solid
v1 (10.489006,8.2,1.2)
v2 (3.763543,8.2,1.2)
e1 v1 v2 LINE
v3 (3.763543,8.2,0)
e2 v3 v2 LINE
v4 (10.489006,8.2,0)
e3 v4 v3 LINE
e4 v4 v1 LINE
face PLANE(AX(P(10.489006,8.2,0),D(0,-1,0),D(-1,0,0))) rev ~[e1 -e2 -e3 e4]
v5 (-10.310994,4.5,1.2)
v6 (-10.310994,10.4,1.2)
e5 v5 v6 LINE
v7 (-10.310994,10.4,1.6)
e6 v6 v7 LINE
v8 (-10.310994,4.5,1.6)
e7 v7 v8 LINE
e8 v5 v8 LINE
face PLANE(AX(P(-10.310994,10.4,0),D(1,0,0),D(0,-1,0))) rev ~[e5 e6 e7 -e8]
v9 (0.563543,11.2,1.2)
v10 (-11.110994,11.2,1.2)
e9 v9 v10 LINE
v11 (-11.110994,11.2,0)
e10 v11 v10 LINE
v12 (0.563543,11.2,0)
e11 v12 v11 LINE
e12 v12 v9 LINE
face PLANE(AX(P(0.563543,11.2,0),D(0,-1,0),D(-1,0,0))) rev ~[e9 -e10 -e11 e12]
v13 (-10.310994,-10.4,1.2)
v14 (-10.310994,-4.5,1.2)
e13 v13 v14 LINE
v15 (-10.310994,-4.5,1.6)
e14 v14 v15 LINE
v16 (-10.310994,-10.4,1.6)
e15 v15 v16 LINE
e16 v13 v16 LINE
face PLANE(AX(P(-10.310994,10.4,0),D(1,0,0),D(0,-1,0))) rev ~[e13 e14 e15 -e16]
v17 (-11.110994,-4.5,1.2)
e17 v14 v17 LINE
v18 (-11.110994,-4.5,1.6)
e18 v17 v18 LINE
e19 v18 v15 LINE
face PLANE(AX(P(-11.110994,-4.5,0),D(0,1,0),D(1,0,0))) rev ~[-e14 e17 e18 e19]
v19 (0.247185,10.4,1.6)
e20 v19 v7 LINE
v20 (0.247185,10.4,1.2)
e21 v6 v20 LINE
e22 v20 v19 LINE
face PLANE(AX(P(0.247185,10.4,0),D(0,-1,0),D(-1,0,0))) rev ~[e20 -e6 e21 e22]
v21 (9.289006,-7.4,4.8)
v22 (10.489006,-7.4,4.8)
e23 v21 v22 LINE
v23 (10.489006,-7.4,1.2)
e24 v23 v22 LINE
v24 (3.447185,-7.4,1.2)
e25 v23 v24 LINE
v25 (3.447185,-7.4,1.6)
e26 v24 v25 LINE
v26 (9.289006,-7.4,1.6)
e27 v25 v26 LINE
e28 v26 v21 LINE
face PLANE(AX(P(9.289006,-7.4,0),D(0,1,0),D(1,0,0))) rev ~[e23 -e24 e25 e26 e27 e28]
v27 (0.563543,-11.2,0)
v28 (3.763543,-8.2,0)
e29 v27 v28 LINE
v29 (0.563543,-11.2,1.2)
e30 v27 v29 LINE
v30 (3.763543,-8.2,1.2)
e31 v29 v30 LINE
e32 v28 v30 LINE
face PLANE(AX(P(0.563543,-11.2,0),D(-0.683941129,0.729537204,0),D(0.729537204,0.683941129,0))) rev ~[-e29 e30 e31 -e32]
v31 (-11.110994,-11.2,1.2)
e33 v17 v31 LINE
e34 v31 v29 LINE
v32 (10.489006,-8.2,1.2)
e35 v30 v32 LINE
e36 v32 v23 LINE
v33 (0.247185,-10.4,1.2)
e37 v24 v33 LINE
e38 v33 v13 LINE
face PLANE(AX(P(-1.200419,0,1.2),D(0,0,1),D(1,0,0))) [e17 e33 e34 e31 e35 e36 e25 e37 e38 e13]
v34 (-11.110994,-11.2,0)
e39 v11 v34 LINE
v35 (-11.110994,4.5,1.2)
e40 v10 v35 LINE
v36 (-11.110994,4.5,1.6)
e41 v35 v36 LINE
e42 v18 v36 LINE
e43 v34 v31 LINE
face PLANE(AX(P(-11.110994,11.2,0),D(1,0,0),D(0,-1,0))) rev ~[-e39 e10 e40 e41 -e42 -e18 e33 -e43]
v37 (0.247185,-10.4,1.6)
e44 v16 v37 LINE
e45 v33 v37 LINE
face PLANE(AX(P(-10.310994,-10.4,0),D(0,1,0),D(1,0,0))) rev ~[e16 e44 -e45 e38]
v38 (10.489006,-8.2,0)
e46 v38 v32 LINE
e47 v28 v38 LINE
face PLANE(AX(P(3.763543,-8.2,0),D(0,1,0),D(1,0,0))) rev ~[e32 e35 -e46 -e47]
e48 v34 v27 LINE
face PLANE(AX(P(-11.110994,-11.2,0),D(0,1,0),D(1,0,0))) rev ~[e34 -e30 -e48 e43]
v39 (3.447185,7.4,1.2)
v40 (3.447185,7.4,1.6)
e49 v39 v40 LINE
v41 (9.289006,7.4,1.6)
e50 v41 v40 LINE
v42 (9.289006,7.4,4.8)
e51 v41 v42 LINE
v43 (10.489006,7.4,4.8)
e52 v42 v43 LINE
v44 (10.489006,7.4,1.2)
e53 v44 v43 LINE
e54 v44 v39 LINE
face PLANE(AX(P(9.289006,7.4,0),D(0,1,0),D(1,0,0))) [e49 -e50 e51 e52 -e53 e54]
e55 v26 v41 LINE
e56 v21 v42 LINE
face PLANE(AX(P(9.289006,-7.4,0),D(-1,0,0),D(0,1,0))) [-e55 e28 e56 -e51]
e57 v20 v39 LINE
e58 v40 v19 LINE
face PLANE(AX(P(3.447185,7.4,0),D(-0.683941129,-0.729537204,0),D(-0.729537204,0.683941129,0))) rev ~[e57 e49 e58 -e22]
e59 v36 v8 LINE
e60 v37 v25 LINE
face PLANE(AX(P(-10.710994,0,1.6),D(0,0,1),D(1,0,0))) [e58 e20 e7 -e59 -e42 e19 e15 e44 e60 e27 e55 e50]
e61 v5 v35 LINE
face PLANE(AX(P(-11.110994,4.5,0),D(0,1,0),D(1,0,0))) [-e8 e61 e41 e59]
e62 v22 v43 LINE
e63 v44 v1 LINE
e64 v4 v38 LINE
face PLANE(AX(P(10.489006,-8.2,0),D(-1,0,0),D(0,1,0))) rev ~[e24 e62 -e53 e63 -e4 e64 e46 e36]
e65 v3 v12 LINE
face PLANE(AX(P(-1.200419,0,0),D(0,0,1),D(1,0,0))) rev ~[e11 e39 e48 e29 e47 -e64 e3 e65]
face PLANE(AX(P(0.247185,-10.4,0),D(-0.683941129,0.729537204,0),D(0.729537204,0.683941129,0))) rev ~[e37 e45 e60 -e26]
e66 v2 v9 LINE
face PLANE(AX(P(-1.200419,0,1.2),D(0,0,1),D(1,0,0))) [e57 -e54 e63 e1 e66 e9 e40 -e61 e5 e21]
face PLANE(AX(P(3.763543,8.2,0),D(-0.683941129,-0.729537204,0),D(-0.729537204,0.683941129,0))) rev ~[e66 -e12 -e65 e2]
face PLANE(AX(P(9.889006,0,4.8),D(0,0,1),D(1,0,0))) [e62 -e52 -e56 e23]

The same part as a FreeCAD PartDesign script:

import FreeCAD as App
import Part
import Sketcher

V = App.Vector

doc = App.newDocument("Part")
body = doc.addObject("PartDesign::Body", "Body")

# Sketch on XY plane
sketch1 = body.newObject("Sketcher::SketchObject", "Sketch")
sketch1.AttachmentSupport = (doc.getObject("XY_Plane"), [""])
sketch1.MapMode = "FlatFace"
sketch1.addGeometry([
    Part.LineSegment(V(-11.110994, -11.2, 0), V(0.563543, -11.2, 0)),  # 0
    Part.LineSegment(V(0.563543, -11.2, 0), V(3.763543, -8.2, 0)),  # 1
    Part.LineSegment(V(3.763543, -8.2, 0), V(10.489006, -8.2, 0)),  # 2
    Part.LineSegment(V(10.489006, -8.2, 0), V(10.489006, 8.2, 0)),  # 3
    Part.LineSegment(V(10.489006, 8.2, 0), V(3.763543, 8.2, 0)),  # 4
    Part.LineSegment(V(3.763543, 8.2, 0), V(0.563543, 11.2, 0)),  # 5
    Part.LineSegment(V(0.563543, 11.2, 0), V(-11.110994, 11.2, 0)),  # 6
    Part.LineSegment(V(-11.110994, 11.2, 0), V(-11.110994, -11.2, 0)),  # 7
], False)
sketch1.addConstraint([
    Sketcher.Constraint("Coincident", 0, 2, 1, 1),
    Sketcher.Constraint("Coincident", 1, 2, 2, 1),
    Sketcher.Constraint("Coincident", 2, 2, 3, 1),
    Sketcher.Constraint("Coincident", 3, 2, 4, 1),
    Sketcher.Constraint("Coincident", 4, 2, 5, 1),
    Sketcher.Constraint("Coincident", 5, 2, 6, 1),
    Sketcher.Constraint("Coincident", 6, 2, 7, 1),
    Sketcher.Constraint("Coincident", 7, 2, 0, 1),
    Sketcher.Constraint("Horizontal", 0),
    Sketcher.Constraint("Horizontal", 2),
    Sketcher.Constraint("Vertical", 3),
    Sketcher.Constraint("Horizontal", 4),
    Sketcher.Constraint("Horizontal", 6),
    Sketcher.Constraint("Vertical", 7),
    Sketcher.Constraint("Symmetric", 1, 2, 4, 2, -1),
    Sketcher.Constraint("Symmetric", 0, 2, 5, 2, -1),
    Sketcher.Constraint("DistanceY", 3, 1, 3, 2, 16.4),
    Sketcher.Constraint("DistanceY", 7, 2, 7, 1, 22.4),
    Sketcher.Constraint("DistanceX", 0, 2, 1, 2, 3.2),
    Sketcher.Constraint("DistanceX", 6, 2, 3, 2, 21.6),
    Sketcher.Constraint("DistanceX", 0, 1, 0, 2, 11.674537),
    Sketcher.Constraint("DistanceX", -1, 1, 0, 2, 0.563543),
])
pad1 = body.newObject("PartDesign::Pad", "Pad")
pad1.Profile = sketch1
pad1.Length = 1.2

# Sketch on XY plane
sketch2 = body.newObject("Sketcher::SketchObject", "Sketch001")
sketch2.AttachmentSupport = (doc.getObject("XY_Plane"), [""])
sketch2.MapMode = "FlatFace"
sketch2.addGeometry([
    Part.LineSegment(V(-11.110994, 4.5, 0), V(-11.110994, -4.5, 0)),
    Part.LineSegment(V(-11.110994, -4.5, 0), V(-10.310994, -4.5, 0)),
    Part.LineSegment(V(-10.310994, -4.5, 0), V(-10.310994, 4.5, 0)),
    Part.LineSegment(V(-10.310994, 4.5, 0), V(-11.110994, 4.5, 0)),
], False)
sketch2.addConstraint([
    Sketcher.Constraint("Coincident", 0, 2, 1, 1),
    Sketcher.Constraint("Coincident", 1, 2, 2, 1),
    Sketcher.Constraint("Coincident", 2, 2, 3, 1),
    Sketcher.Constraint("Coincident", 3, 2, 0, 1),
    Sketcher.Constraint("Vertical", 0),
    Sketcher.Constraint("Horizontal", 1),
    Sketcher.Constraint("Vertical", 2),
    Sketcher.Constraint("Horizontal", 3),
    Sketcher.Constraint("DistanceY", 0, 2, 0, 1, 9.0),
    Sketcher.Constraint("DistanceX", 1, 1, 1, 2, 0.8),
    Sketcher.Constraint("DistanceY", 0, 2, -1, 1, 4.5),
    Sketcher.Constraint("DistanceX", 0, 2, -1, 1, 11.110994),
])
pad2 = body.newObject("PartDesign::Pad", "Pad001")
pad2.Profile = sketch2
pad2.Length = 1.6

# Sketch on XY plane
sketch3 = body.newObject("Sketcher::SketchObject", "Sketch002")
sketch3.AttachmentSupport = (doc.getObject("XY_Plane"), [""])
sketch3.MapMode = "FlatFace"
sketch3.addGeometry([
    Part.LineSegment(V(9.289006, 7.4, 0), V(9.289006, -7.4, 0)),
    Part.LineSegment(V(9.289006, -7.4, 0), V(10.489006, -7.4, 0)),
    Part.LineSegment(V(10.489006, -7.4, 0), V(10.489006, 7.4, 0)),
    Part.LineSegment(V(10.489006, 7.4, 0), V(9.289006, 7.4, 0)),
], False)
sketch3.addConstraint([
    Sketcher.Constraint("Coincident", 0, 2, 1, 1),
    Sketcher.Constraint("Coincident", 1, 2, 2, 1),
    Sketcher.Constraint("Coincident", 2, 2, 3, 1),
    Sketcher.Constraint("Coincident", 3, 2, 0, 1),
    Sketcher.Constraint("Vertical", 0),
    Sketcher.Constraint("Horizontal", 1),
    Sketcher.Constraint("Vertical", 2),
    Sketcher.Constraint("Horizontal", 3),
    Sketcher.Constraint("DistanceX", 1, 1, 1, 2, 1.2),
    Sketcher.Constraint("DistanceY", 0, 2, 0, 1, 14.8),
    Sketcher.Constraint("DistanceY", 0, 2, -1, 1, 7.4),
    Sketcher.Constraint("DistanceX", -1, 1, 0, 2, 9.289006),
])
pad3 = body.newObject("PartDesign::Pad", "Pad002")
pad3.Profile = sketch3
pad3.Length = 4.8

# Sketch on XY plane
sketch4 = body.newObject("Sketcher::SketchObject", "Sketch003")
sketch4.AttachmentSupport = (doc.getObject("XY_Plane"), [""])
sketch4.MapMode = "FlatFace"
sketch4.addGeometry([
    Part.LineSegment(V(9.289006, -7.4, 0), V(9.289006, 7.4, 0)),  # 0
    Part.LineSegment(V(9.289006, 7.4, 0), V(3.447185, 7.4, 0)),  # 1
    Part.LineSegment(V(3.447185, 7.4, 0), V(0.247185, 10.4, 0)),  # 2
    Part.LineSegment(V(0.247185, 10.4, 0), V(-10.310994, 10.4, 0)),  # 3
    Part.LineSegment(V(-10.310994, 10.4, 0), V(-10.310994, -10.4, 0)),  # 4
    Part.LineSegment(V(-10.310994, -10.4, 0), V(0.247185, -10.4, 0)),  # 5
    Part.LineSegment(V(0.247185, -10.4, 0), V(3.447185, -7.4, 0)),  # 6
    Part.LineSegment(V(3.447185, -7.4, 0), V(9.289006, -7.4, 0)),  # 7
], False)
sketch4.addConstraint([
    Sketcher.Constraint("Coincident", 0, 2, 1, 1),
    Sketcher.Constraint("Coincident", 1, 2, 2, 1),
    Sketcher.Constraint("Coincident", 2, 2, 3, 1),
    Sketcher.Constraint("Coincident", 3, 2, 4, 1),
    Sketcher.Constraint("Coincident", 4, 2, 5, 1),
    Sketcher.Constraint("Coincident", 5, 2, 6, 1),
    Sketcher.Constraint("Coincident", 6, 2, 7, 1),
    Sketcher.Constraint("Coincident", 7, 2, 0, 1),
    Sketcher.Constraint("Vertical", 0),
    Sketcher.Constraint("Horizontal", 1),
    Sketcher.Constraint("Horizontal", 3),
    Sketcher.Constraint("Vertical", 4),
    Sketcher.Constraint("Horizontal", 5),
    Sketcher.Constraint("Horizontal", 7),
    Sketcher.Constraint("Symmetric", 2, 2, 5, 2, -1),
    Sketcher.Constraint("Symmetric", 1, 2, 6, 2, -1),
    Sketcher.Constraint("DistanceY", 0, 1, 0, 2, 14.8),
    Sketcher.Constraint("DistanceY", 4, 2, 4, 1, 20.8),
    Sketcher.Constraint("DistanceX", 2, 2, 1, 2, 3.2),
    Sketcher.Constraint("DistanceX", 3, 2, 0, 2, 19.6),
    Sketcher.Constraint("DistanceX", 1, 2, 1, 1, 5.841821),
    Sketcher.Constraint("DistanceX", -1, 1, 0, 2, 9.289006),
])
pad4 = body.newObject("PartDesign::Pad", "Pad003")
pad4.Profile = sketch4
pad4.Length = 1.6

doc.recompute()
